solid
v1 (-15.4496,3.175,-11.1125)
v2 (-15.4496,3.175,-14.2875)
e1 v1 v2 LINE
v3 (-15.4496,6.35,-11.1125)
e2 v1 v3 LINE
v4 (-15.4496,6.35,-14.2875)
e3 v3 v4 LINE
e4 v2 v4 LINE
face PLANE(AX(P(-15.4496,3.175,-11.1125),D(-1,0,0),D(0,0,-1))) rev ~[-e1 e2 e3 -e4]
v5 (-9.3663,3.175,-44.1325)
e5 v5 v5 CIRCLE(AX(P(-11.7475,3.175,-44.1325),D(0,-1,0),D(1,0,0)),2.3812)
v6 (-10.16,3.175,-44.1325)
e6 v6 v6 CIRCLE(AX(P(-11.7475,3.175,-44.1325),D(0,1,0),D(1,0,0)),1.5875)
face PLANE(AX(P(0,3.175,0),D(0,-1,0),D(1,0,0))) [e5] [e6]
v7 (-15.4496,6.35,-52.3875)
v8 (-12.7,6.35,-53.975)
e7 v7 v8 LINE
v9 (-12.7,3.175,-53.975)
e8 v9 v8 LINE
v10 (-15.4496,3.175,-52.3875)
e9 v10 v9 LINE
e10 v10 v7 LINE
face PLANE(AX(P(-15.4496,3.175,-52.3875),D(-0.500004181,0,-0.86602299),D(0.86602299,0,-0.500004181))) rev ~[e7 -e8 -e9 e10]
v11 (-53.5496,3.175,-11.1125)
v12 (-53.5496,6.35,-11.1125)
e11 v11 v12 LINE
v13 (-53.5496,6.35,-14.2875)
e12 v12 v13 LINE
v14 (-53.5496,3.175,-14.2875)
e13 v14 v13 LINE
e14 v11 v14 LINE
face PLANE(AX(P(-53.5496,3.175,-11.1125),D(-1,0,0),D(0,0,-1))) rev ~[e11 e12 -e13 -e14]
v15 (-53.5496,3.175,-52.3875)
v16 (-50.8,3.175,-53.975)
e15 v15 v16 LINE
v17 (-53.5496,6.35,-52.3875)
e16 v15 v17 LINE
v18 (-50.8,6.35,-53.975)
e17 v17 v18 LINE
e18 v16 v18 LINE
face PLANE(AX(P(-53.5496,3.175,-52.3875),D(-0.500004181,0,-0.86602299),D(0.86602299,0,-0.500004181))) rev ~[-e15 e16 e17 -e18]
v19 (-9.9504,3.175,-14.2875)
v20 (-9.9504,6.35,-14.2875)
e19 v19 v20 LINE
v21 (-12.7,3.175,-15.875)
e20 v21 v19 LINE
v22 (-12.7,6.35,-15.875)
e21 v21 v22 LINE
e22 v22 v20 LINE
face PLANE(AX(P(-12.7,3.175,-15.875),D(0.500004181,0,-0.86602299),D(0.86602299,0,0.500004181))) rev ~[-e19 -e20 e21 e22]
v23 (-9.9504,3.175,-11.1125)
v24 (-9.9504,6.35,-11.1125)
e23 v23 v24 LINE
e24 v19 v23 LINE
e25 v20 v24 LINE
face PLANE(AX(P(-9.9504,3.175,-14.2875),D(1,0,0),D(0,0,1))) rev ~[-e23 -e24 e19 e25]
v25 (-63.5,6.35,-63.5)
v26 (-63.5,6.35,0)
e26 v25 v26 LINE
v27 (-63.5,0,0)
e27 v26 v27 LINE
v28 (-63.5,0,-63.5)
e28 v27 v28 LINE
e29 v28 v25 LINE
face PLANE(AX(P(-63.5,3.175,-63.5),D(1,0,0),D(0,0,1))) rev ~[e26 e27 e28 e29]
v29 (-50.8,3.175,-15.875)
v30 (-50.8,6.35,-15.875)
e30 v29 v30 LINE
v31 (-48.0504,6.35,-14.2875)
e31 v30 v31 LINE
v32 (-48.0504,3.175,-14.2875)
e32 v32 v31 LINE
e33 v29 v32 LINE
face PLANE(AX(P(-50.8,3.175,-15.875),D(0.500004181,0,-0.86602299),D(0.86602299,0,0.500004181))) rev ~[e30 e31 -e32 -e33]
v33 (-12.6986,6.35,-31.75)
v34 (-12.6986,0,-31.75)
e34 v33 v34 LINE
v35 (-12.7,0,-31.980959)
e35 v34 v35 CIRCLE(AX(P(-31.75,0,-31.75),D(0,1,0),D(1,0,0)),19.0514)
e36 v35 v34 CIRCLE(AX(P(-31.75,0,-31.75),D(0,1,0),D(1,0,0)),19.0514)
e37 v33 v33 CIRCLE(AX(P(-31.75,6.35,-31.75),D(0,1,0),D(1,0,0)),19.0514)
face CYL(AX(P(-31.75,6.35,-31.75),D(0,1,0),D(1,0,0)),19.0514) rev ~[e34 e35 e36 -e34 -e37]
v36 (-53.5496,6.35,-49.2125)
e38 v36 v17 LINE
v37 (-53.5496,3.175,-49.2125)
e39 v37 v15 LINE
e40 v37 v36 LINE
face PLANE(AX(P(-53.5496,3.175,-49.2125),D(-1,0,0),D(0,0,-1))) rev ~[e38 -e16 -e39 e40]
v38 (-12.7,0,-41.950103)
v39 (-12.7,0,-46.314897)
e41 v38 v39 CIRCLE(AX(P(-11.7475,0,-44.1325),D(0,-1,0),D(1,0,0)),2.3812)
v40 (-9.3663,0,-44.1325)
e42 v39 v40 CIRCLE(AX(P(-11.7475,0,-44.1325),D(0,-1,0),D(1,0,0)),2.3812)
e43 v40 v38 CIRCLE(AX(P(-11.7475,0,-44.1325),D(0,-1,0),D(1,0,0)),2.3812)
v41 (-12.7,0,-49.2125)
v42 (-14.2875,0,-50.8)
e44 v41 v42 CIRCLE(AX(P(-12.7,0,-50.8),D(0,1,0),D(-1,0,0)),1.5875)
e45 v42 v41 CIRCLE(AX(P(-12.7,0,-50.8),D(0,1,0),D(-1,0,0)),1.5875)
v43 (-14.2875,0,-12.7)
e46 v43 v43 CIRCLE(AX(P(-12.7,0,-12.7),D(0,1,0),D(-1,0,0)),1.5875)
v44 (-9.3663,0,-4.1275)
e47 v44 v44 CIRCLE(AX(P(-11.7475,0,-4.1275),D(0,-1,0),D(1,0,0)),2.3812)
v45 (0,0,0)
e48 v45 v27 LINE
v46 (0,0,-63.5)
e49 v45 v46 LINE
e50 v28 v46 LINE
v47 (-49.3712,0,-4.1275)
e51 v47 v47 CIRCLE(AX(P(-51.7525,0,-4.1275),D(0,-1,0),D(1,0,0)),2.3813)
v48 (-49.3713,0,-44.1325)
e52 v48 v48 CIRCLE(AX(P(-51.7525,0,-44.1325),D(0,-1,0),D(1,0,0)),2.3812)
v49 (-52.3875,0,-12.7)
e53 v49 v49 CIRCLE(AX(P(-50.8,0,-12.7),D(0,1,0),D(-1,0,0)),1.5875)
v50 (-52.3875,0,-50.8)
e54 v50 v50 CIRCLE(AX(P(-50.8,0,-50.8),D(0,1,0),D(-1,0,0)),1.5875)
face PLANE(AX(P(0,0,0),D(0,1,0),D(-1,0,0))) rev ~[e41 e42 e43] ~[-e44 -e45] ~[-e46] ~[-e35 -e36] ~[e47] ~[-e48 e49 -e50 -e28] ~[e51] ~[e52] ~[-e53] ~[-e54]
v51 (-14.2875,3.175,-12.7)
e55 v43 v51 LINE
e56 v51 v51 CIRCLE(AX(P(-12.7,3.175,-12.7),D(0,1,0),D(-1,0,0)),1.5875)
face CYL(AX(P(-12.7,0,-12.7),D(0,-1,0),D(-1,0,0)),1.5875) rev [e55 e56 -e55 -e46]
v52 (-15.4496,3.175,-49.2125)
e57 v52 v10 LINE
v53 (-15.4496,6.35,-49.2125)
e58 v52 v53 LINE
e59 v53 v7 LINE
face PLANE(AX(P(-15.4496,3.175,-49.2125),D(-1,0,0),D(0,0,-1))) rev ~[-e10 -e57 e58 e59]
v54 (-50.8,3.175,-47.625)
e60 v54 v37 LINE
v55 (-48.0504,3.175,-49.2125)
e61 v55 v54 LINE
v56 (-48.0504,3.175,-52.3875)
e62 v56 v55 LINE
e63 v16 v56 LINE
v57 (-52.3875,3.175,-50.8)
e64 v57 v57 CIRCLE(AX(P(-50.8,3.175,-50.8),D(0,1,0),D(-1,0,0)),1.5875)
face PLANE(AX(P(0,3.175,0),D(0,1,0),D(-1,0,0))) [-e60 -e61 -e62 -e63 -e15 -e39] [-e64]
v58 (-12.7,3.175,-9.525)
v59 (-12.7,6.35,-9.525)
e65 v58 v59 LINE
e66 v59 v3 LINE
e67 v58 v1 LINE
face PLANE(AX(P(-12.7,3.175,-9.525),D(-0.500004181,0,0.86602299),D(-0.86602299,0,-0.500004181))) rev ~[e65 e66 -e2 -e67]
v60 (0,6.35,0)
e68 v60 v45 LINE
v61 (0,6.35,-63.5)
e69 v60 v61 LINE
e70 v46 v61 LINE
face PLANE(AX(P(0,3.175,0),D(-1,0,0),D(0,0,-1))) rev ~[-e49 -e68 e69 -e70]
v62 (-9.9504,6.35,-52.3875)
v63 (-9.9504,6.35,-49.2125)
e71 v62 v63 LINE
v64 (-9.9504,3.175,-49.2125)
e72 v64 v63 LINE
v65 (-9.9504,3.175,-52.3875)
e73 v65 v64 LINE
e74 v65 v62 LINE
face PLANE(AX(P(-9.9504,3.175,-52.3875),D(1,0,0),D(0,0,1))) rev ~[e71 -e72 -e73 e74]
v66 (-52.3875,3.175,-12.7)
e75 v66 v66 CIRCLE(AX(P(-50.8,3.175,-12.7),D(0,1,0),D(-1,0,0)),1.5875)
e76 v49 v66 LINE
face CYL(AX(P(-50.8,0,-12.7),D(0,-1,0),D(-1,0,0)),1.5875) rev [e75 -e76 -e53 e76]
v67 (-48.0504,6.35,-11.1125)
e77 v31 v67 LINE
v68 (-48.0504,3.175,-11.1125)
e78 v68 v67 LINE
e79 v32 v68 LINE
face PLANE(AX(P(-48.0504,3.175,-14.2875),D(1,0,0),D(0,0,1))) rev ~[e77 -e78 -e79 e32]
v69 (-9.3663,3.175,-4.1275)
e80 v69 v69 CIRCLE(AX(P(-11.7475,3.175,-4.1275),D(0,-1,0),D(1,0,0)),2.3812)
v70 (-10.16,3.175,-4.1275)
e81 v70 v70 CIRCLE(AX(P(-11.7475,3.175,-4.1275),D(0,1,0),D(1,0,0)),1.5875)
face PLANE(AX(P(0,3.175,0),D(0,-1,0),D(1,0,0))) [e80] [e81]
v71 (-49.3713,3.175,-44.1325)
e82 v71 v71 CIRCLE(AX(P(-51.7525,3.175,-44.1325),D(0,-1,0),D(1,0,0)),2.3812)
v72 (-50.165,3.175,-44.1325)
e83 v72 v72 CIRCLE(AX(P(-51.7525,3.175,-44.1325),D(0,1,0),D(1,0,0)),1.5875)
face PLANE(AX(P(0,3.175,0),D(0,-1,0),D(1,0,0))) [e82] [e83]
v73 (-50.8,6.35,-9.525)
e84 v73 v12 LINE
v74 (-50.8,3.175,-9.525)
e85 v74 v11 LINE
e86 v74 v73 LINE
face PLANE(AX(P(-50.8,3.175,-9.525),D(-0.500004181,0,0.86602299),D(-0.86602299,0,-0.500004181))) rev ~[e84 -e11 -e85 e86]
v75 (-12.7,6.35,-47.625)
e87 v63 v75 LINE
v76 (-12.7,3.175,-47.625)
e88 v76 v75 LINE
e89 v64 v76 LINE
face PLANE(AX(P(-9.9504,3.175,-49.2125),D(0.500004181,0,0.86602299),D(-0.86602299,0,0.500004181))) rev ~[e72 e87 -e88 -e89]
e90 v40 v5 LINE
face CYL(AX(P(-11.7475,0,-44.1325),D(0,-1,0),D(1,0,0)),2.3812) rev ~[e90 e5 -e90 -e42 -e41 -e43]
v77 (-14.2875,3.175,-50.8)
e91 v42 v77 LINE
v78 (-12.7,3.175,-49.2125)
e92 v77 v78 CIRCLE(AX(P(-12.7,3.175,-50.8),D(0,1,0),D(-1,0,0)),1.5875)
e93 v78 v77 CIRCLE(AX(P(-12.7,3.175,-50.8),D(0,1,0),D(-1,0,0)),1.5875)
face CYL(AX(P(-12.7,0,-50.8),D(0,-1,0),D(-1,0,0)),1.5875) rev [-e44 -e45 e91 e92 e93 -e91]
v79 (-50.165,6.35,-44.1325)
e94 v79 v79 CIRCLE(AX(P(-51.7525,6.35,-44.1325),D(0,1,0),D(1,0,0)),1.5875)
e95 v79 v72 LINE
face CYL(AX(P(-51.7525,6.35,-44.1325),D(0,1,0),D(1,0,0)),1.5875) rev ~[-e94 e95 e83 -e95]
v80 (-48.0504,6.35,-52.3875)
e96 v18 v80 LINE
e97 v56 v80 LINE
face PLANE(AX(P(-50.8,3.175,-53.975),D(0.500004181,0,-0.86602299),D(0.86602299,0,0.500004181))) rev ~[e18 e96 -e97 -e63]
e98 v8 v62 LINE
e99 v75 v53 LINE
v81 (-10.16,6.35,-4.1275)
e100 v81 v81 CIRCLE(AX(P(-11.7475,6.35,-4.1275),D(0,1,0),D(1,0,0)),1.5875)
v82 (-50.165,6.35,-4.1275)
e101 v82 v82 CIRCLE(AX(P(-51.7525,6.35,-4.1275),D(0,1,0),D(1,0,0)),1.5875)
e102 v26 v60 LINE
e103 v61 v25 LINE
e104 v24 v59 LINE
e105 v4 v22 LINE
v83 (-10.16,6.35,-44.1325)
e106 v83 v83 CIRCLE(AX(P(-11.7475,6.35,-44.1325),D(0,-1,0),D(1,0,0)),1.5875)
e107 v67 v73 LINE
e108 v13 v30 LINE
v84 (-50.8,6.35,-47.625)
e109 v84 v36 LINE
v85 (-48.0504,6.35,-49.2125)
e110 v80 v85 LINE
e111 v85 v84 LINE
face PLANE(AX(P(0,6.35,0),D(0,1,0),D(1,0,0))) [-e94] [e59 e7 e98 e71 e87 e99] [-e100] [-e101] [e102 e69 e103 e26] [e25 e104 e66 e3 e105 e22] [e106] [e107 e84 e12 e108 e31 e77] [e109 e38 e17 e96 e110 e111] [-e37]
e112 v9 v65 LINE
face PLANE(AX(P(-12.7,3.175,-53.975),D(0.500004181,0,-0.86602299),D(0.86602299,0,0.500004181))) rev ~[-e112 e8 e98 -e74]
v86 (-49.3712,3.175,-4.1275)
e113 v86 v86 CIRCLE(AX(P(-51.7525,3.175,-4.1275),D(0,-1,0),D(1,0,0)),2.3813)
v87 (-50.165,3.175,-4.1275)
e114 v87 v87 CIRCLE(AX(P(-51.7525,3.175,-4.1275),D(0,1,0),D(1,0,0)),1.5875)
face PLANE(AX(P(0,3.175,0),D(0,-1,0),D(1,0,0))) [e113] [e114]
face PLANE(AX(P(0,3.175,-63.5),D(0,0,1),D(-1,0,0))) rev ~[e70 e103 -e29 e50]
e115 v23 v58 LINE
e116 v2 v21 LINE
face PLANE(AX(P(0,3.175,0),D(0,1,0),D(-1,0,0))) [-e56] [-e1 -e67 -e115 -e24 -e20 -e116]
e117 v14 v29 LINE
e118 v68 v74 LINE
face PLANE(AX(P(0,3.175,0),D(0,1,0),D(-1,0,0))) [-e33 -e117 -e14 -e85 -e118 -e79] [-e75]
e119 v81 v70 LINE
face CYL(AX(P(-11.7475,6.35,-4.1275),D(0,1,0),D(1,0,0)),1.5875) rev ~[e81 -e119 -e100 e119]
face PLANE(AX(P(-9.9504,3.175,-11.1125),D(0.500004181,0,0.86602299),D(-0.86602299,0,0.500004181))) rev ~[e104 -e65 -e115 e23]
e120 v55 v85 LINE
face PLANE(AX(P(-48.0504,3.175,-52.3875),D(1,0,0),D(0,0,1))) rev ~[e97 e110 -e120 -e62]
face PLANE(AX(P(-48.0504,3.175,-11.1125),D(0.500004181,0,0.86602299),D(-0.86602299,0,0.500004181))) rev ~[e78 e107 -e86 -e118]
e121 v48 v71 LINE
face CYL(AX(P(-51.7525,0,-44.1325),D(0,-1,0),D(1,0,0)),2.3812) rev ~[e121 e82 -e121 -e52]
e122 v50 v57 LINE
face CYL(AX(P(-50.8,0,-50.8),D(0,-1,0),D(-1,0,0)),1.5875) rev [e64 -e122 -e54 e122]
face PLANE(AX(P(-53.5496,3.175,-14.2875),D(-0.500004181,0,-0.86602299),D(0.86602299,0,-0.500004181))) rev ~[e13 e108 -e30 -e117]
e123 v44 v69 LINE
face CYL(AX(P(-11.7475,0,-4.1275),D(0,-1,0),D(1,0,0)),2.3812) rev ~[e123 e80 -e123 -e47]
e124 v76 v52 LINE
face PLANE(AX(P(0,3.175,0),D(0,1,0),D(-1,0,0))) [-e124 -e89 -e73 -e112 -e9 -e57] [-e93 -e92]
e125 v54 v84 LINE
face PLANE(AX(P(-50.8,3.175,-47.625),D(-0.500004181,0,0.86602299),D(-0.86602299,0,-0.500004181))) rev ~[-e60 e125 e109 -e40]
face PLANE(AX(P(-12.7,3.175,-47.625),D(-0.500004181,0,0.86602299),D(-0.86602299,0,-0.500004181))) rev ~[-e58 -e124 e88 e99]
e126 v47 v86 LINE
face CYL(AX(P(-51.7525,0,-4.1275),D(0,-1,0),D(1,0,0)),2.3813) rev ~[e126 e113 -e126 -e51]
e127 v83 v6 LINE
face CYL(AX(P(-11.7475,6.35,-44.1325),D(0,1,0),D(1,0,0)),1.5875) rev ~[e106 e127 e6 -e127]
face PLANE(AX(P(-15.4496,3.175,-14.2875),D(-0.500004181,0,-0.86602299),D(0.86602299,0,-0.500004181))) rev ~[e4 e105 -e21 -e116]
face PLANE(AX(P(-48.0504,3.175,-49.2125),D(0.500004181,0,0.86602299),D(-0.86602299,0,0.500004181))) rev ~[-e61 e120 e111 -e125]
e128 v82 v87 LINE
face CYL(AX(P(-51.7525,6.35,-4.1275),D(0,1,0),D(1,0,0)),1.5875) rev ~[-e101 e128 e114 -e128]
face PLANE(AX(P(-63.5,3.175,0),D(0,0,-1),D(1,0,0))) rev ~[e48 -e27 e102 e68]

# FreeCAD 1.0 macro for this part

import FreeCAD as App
import Part
import Sketcher
Q = App.Units.Quantity


def add_polygon(sketch, points):
    """Adds a closed chain of lines whose ends are joined by coincident constraints."""
    first, n = sketch.GeometryCount, len(points)
    for a, b in zip(points, points[1:] + points[:1]):
        sketch.addGeometry(Part.LineSegment(App.Vector(*a, 0), App.Vector(*b, 0)), False)
    for i in range(n):
        sketch.addConstraint(Sketcher.Constraint("Coincident", first + i, 2, first + (i + 1) % n, 1))

doc = App.newDocument("Part")
body = doc.addObject("PartDesign::Body", "Body")

# Sketch on XZ plane
sketch1 = body.newObject("Sketcher::SketchObject", "Sketch")
sketch1.AttachmentSupport = (doc.getObject("XZ_Plane"), [""])
sketch1.MapMode = "FlatFace"
add_polygon(sketch1, [(-63.5, 0), (0, 0), (0, -63.5), (-63.5, -63.5)])  # lines 0-3
sketch1.addGeometry(Part.Circle(App.Vector(-50.8, -50.8, 0), App.Vector(0, 0, 1), 1.6), False)  # 4
sketch1.addGeometry(Part.Circle(App.Vector(-12.7, -12.7, 0), App.Vector(0, 0, 1), 1.6), False)  # 5
sketch1.addGeometry(Part.Circle(App.Vector(-50.8, -12.7, 0), App.Vector(0, 0, 1), 1.6), False)  # 6
sketch1.addGeometry(Part.Circle(App.Vector(-12.7, -50.8, 0), App.Vector(0, 0, 1), 1.6), False)  # 7
sketch1.addConstraint(Sketcher.Constraint("Horizontal", 0))
sketch1.addConstraint(Sketcher.Constraint("Vertical", 1))
sketch1.addConstraint(Sketcher.Constraint("Horizontal", 2))
sketch1.addConstraint(Sketcher.Constraint("Vertical", 3))
sketch1.addConstraint(Sketcher.Constraint("Coincident", 0, 2, -1, 1))
sketch1.addConstraint(Sketcher.Constraint("Equal", 4, 5))
sketch1.addConstraint(Sketcher.Constraint("Equal", 5, 6))
sketch1.addConstraint(Sketcher.Constraint("Equal", 6, 7))
sketch1.addConstraint(Sketcher.Constraint("Horizontal", 5, 3, 6, 3))
sketch1.addConstraint(Sketcher.Constraint("Horizontal", 4, 3, 7, 3))
sketch1.addConstraint(Sketcher.Constraint("Vertical", 4, 3, 6, 3))
sketch1.addConstraint(Sketcher.Constraint("Vertical", 5, 3, 7, 3))
sketch1.addConstraint(Sketcher.Constraint("Equal", 2, 1))
sketch1.addConstraint(Sketcher.Constraint("Diameter", 4, Q("0.125 in")))
sketch1.addConstraint(Sketcher.Constraint("DistanceX", 0, 1, 0, 2, Q("2.5 in")))
sketch1.addConstraint(Sketcher.Constraint("DistanceX", 4, 3, 5, 3, Q("1.5 in")))
sketch1.addConstraint(Sketcher.Constraint("DistanceY", 4, 3, 5, 3, Q("1.5 in")))
sketch1.addConstraint(Sketcher.Constraint("DistanceX", 4, 3, -1, 1, Q("2 in")))
sketch1.addConstraint(Sketcher.Constraint("DistanceY", 4, 3, -1, 1, Q("2 in")))
pad1 = body.newObject("PartDesign::Pad", "Pad")
pad1.Profile = sketch1
pad1.Length = Q("0.125 in")
pad1.Reversed = True

# Sketch on XZ plane
sketch2 = body.newObject("Sketcher::SketchObject", "Sketch001")
sketch2.AttachmentSupport = (doc.getObject("XZ_Plane"), [""])
sketch2.MapMode = "FlatFace"
sketch2.AttachmentOffset = App.Placement(App.Vector(0, 0, -0.125 * 25.4), App.Rotation())
add_polygon(sketch2, [(0, 0), (0, -63.5), (-63.5, -63.5), (-63.5, 0)])  # lines 0-3
add_polygon(sketch2, [(-53.5, -14.3), (-50.8, -15.9), (-48.1, -14.3), (-48.1, -11.1), (-50.8, -9.5), (-53.5, -11.1)])  # lines 4-9
add_polygon(sketch2, [(-15.4, -14.3), (-12.7, -15.9), (-10, -14.3), (-10, -11.1), (-12.7, -9.5), (-15.4, -11.1)])  # lines 10-15
add_polygon(sketch2, [(-53.5, -52.4), (-50.8, -54), (-48.1, -52.4), (-48.1, -49.2), (-50.8, -47.6), (-53.5, -49.2)])  # lines 16-21
add_polygon(sketch2, [(-15.4, -52.4), (-12.7, -54), (-10, -52.4), (-10, -49.2), (-12.7, -47.6), (-15.4, -49.2)])  # lines 22-27
sketch2.addConstraint(Sketcher.Constraint("Vertical", 0))
sketch2.addConstraint(Sketcher.Constraint("Horizontal", 1))
sketch2.addConstraint(Sketcher.Constraint("Vertical", 2))
sketch2.addConstraint(Sketcher.Constraint("Horizontal", 3))
sketch2.addConstraint(Sketcher.Constraint("Vertical", 6))
sketch2.addConstraint(Sketcher.Constraint("Vertical", 9))
sketch2.addConstraint(Sketcher.Constraint("Vertical", 12))
sketch2.addConstraint(Sketcher.Constraint("Vertical", 15))
sketch2.addConstraint(Sketcher.Constraint("Vertical", 18))
sketch2.addConstraint(Sketcher.Constraint("Vertical", 21))
sketch2.addConstraint(Sketcher.Constraint("Vertical", 24))
sketch2.addConstraint(Sketcher.Constraint("Vertical", 27))
sketch2.addConstraint(Sketcher.Constraint("Coincident", 3, 2, -1, 1))
sketch2.addConstraint(Sketcher.Constraint("Parallel", 4, 7))
sketch2.addConstraint(Sketcher.Constraint("Parallel", 5, 8))
sketch2.addConstraint(Sketcher.Constraint("Parallel", 7, 10))
sketch2.addConstraint(Sketcher.Constraint("Parallel", 8, 11))
sketch2.addConstraint(Sketcher.Constraint("Parallel", 10, 13))
sketch2.addConstraint(Sketcher.Constraint("Parallel", 11, 14))
sketch2.addConstraint(Sketcher.Constraint("Parallel", 13, 16))
sketch2.addConstraint(Sketcher.Constraint("Parallel", 14, 17))
sketch2.addConstraint(Sketcher.Constraint("Parallel", 16, 19))
sketch2.addConstraint(Sketcher.Constraint("Parallel", 17, 20))
sketch2.addConstraint(Sketcher.Constraint("Parallel", 19, 22))
sketch2.addConstraint(Sketcher.Constraint("Parallel", 20, 23))
sketch2.addConstraint(Sketcher.Constraint("Parallel", 22, 25))
sketch2.addConstraint(Sketcher.Constraint("Parallel", 23, 26))
sketch2.addConstraint(Sketcher.Constraint("Horizontal", 6, 2, 8, 2))
sketch2.addConstraint(Sketcher.Constraint("Horizontal", 5, 2, 9, 2))
sketch2.addConstraint(Sketcher.Constraint("Horizontal", 4, 2, 10, 2))
sketch2.addConstraint(Sketcher.Constraint("Horizontal", 9, 2, 11, 2))
sketch2.addConstraint(Sketcher.Constraint("Horizontal", 8, 2, 12, 2))
sketch2.addConstraint(Sketcher.Constraint("Horizontal", 7, 2, 13, 2))
sketch2.addConstraint(Sketcher.Constraint("Horizontal", 12, 2, 14, 2))
sketch2.addConstraint(Sketcher.Constraint("Horizontal", 18, 2, 20, 2))
sketch2.addConstraint(Sketcher.Constraint("Horizontal", 17, 2, 21, 2))
sketch2.addConstraint(Sketcher.Constraint("Horizontal", 16, 2, 22, 2))
sketch2.addConstraint(Sketcher.Constraint("Horizontal", 21, 2, 23, 2))
sketch2.addConstraint(Sketcher.Constraint("Horizontal", 20, 2, 24, 2))
sketch2.addConstraint(Sketcher.Constraint("Horizontal", 19, 2, 25, 2))
sketch2.addConstraint(Sketcher.Constraint("Horizontal", 24, 2, 26, 2))
sketch2.addConstraint(Sketcher.Constraint("Vertical", 4, 2, 7, 2))
sketch2.addConstraint(Sketcher.Constraint("Vertical", 7, 2, 16, 2))
sketch2.addConstraint(Sketcher.Constraint("Vertical", 6, 2, 17, 2))
sketch2.addConstraint(Sketcher.Constraint("Vertical", 13, 2, 22, 2))
sketch2.addConstraint(Sketcher.Constraint("Equal", 3, 0))
sketch2.addConstraint(Sketcher.Constraint("Equal", 15, 18))
sketch2.addConstraint(Sketcher.Constraint("DistanceX", 4, 2, 10, 2, Q("1.5 in")))
sketch2.addConstraint(Sketcher.Constraint("DistanceY", 16, 2, 4, 2, Q("1.5 in")))
sketch2.addConstraint(Sketcher.Constraint("DistanceY", 4, 2, 7, 2, Q("0.25 in")))
sketch2.addConstraint(Sketcher.Constraint("DistanceX", 1, 2, 1, 1, Q("2.5 in")))
sketch2.addConstraint(Sketcher.Constraint("DistanceX", 4, 2, -1, 1, Q("2 in")))
sketch2.addConstraint(Sketcher.Constraint("Angle", 4, Q("-30.0003 deg")))
sketch2.addConstraint(Sketcher.Constraint("DistanceY", 6, 1, 6, 2, Q("0.125 in")))
sketch2.addConstraint(Sketcher.Constraint("DistanceY", 4, 2, -1, 1, Q("0.625 in")))
pad2 = body.newObject("PartDesign::Pad", "Pad001")
pad2.Profile = sketch2
pad2.Length = Q("0.125 in")
pad2.Reversed = True

# Sketch on XZ plane
sketch3 = body.newObject("Sketcher::SketchObject", "Sketch002")
sketch3.AttachmentSupport = (doc.getObject("XZ_Plane"), [""])
sketch3.MapMode = "FlatFace"
sketch3.AttachmentOffset = App.Placement(App.Vector(0, 0, -0.25 * 25.4), App.Rotation())
sketch3.addGeometry(Part.Circle(App.Vector(-11.7, -44.1, 0), App.Vector(0, 0, 1), 1.6), False)
sketch3.addGeometry(Part.Circle(App.Vector(-51.8, -44.1, 0), App.Vector(0, 0, 1), 1.6), False)
sketch3.addGeometry(Part.Circle(App.Vector(-11.7, -4.1, 0), App.Vector(0, 0, 1), 1.6), False)
sketch3.addGeometry(Part.Circle(App.Vector(-51.8, -4.1, 0), App.Vector(0, 0, 1), 1.6), False)
sketch3.addConstraint(Sketcher.Constraint("Equal", 0, 1))
sketch3.addConstraint(Sketcher.Constraint("Equal", 1, 2))
sketch3.addConstraint(Sketcher.Constraint("Equal", 2, 3))
sketch3.addConstraint(Sketcher.Constraint("Horizontal", 0, 3, 1, 3))
sketch3.addConstraint(Sketcher.Constraint("Horizontal", 2, 3, 3, 3))
sketch3.addConstraint(Sketcher.Constraint("Vertical", 0, 3, 2, 3))
sketch3.addConstraint(Sketcher.Constraint("Vertical", 1, 3, 3, 3))
sketch3.addConstraint(Sketcher.Constraint("Diameter", 0, Q("0.125 in")))
sketch3.addConstraint(Sketcher.Constraint("DistanceX", 1, 3, 0, 3, Q("1.575 in")))
sketch3.addConstraint(Sketcher.Constraint("DistanceY", 0, 3, 2, 3, Q("1.575 in")))
sketch3.addConstraint(Sketcher.Constraint("DistanceX", 0, 3, -1, 1, Q("0.4625 in")))
sketch3.addConstraint(Sketcher.Constraint("DistanceY", 0, 3, -1, 1, Q("1.7375 in")))
pocket1 = body.newObject("PartDesign::Pocket", "Pocket")
pocket1.Profile = sketch3
pocket1.Length = Q("0.25 in")
pocket1.Reversed = True

# Sketch on XZ plane
sketch4 = body.newObject("Sketcher::SketchObject", "Sketch003")
sketch4.AttachmentSupport = (doc.getObject("XZ_Plane"), [""])
sketch4.MapMode = "FlatFace"
sketch4.addGeometry(Part.Circle(App.Vector(-51.8, -4.1, 0), App.Vector(0, 0, 1), 2.4), False)
sketch4.addGeometry(Part.Circle(App.Vector(-11.7, -4.1, 0), App.Vector(0, 0, 1), 2.4), False)
sketch4.addGeometry(Part.Circle(App.Vector(-51.8, -44.1, 0), App.Vector(0, 0, 1), 2.4), False)
sketch4.addGeometry(Part.Circle(App.Vector(-11.7, -44.1, 0), App.Vector(0, 0, 1), 2.4), False)
sketch4.addConstraint(Sketcher.Constraint("Equal", 0, 1))
sketch4.addConstraint(Sketcher.Constraint("Equal", 1, 2))
sketch4.addConstraint(Sketcher.Constraint("Equal", 2, 3))
sketch4.addConstraint(Sketcher.Constraint("Horizontal", 0, 3, 1, 3))
sketch4.addConstraint(Sketcher.Constraint("Horizontal", 2, 3, 3, 3))
sketch4.addConstraint(Sketcher.Constraint("Vertical", 0, 3, 2, 3))
sketch4.addConstraint(Sketcher.Constraint("Vertical", 1, 3, 3, 3))
sketch4.addConstraint(Sketcher.Constraint("Diameter", 0, Q("0.1875 in")))
sketch4.addConstraint(Sketcher.Constraint("DistanceX", 0, 3, 1, 3, Q("1.575 in")))
sketch4.addConstraint(Sketcher.Constraint("DistanceY", 2, 3, 0, 3, Q("1.575 in")))
sketch4.addConstraint(Sketcher.Constraint("DistanceX", 0, 3, -1, 1, Q("2.0375 in")))
sketch4.addConstraint(Sketcher.Constraint("DistanceY", 0, 3, -1, 1, Q("0.1625 in")))
pocket2 = body.newObject("PartDesign::Pocket", "Pocket001")
pocket2.Profile = sketch4
pocket2.Length = Q("0.125 in")

# Sketch on XZ plane
sketch5 = body.newObject("Sketcher::SketchObject", "Sketch004")
sketch5.AttachmentSupport = (doc.getObject("XZ_Plane"), [""])
sketch5.MapMode = "FlatFace"
sketch5.AttachmentOffset = App.Placement(App.Vector(0, 0, -0.25 * 25.4), App.Rotation())
sketch5.addGeometry(Part.Circle(App.Vector(-32, -32, 0), App.Vector(0, 0, 1), 19), False)
sketch5.addConstraint(Sketcher.Constraint("Diameter", 0, Q("1.5001 in")))
sketch5.addConstraint(Sketcher.Constraint("DistanceX", 0, 3, -1, 1, Q("1.25 in")))
sketch5.addConstraint(Sketcher.Constraint("DistanceY", 0, 3, -1, 1, Q("1.25 in")))
pocket3 = body.newObject("PartDesign::Pocket", "Pocket002")
pocket3.Profile = sketch5
pocket3.Length = Q("0.25 in")
pocket3.Reversed = True

doc.recompute()
